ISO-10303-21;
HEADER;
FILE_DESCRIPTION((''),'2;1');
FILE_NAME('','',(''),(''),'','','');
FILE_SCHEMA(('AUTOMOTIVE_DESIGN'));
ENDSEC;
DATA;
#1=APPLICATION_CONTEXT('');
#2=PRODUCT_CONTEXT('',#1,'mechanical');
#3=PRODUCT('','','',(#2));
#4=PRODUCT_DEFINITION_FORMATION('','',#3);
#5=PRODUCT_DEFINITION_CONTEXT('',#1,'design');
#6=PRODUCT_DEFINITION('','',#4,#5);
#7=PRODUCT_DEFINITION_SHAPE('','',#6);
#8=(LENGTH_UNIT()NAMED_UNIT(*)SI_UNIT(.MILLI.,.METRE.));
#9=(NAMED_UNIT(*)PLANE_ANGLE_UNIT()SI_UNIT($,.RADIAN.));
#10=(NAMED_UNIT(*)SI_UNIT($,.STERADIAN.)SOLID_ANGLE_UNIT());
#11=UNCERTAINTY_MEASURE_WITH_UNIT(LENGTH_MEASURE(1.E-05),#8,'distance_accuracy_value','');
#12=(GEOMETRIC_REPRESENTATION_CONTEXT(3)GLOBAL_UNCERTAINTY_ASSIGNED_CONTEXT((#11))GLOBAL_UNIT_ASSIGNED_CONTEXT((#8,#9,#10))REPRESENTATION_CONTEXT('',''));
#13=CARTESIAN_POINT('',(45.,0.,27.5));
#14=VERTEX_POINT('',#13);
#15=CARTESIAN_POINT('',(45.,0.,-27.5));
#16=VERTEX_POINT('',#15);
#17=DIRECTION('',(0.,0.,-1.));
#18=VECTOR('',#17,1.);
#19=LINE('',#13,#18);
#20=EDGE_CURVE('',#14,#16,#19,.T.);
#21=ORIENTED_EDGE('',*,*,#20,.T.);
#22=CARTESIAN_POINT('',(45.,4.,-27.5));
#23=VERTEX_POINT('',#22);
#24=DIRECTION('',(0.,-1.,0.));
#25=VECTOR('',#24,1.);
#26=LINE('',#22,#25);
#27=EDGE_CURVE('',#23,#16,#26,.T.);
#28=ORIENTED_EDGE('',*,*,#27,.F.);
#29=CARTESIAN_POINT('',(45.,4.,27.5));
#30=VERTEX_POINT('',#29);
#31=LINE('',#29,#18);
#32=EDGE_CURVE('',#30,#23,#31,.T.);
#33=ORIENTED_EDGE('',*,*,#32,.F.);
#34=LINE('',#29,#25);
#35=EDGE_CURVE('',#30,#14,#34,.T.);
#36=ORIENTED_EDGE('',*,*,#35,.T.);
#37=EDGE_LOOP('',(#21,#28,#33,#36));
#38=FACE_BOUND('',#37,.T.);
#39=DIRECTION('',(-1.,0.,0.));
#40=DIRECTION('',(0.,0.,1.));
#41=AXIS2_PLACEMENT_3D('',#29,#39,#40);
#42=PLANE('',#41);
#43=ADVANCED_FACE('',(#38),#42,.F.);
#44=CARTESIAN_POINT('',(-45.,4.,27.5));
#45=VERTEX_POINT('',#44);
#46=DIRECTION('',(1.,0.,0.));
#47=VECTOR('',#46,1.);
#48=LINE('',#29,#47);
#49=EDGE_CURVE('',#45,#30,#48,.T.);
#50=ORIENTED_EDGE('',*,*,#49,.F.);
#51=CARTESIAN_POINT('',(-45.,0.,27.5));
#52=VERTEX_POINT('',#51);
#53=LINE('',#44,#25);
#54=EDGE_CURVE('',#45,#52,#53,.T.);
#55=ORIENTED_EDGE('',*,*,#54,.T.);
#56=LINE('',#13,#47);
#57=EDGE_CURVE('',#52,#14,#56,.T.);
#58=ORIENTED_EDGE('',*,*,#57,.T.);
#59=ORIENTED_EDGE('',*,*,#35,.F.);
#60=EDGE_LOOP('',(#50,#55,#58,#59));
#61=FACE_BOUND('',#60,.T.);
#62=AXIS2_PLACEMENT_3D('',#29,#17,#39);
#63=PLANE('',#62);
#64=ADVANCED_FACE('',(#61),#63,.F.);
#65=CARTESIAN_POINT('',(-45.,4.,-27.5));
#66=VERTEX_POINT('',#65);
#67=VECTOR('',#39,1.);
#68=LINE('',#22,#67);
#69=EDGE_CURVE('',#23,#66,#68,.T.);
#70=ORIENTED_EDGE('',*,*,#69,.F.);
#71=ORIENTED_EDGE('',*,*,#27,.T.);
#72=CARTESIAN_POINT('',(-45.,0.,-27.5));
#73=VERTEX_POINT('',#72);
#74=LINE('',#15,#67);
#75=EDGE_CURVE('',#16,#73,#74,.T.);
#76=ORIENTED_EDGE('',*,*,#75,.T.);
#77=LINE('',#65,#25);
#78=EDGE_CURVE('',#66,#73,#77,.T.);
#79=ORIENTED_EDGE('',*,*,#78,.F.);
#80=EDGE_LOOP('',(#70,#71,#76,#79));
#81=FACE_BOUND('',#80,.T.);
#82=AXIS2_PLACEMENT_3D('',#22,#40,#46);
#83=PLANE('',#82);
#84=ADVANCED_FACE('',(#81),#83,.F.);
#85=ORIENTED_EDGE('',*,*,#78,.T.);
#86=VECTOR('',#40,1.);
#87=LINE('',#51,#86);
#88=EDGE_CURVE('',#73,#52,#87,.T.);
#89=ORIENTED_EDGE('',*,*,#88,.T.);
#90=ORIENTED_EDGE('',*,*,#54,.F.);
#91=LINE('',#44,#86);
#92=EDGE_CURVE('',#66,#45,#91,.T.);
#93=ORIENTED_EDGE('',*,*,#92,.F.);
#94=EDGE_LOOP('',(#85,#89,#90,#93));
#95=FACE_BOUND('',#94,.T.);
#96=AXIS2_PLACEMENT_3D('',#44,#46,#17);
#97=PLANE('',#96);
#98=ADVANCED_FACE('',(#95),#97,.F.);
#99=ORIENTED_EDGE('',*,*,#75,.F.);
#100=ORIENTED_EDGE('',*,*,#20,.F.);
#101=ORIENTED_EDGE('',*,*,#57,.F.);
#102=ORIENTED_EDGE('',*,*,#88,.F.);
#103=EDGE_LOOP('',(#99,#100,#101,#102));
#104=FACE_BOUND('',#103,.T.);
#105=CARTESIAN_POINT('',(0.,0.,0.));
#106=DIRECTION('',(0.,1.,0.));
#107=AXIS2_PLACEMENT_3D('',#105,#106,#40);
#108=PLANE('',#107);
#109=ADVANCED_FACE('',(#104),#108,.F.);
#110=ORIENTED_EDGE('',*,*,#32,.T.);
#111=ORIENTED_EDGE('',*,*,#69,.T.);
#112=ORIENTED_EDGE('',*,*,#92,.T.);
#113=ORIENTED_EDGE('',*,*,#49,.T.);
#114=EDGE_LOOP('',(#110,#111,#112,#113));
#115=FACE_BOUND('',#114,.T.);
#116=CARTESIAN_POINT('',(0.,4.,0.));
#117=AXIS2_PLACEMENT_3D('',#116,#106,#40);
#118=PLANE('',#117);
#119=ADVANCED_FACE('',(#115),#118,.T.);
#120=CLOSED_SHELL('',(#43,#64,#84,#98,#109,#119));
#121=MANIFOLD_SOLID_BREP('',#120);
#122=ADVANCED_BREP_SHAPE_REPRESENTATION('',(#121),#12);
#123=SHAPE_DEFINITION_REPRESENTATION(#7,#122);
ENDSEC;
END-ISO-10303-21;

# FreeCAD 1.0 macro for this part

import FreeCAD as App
import Part
import Sketcher

V = App.Vector
Q = App.Units.Quantity

doc = App.newDocument("Part")
params = doc.addObject("Spreadsheet::Sheet", "Params")
for row, (alias, value) in enumerate([
    ("sketch1_width", "90 mm"),
    ("sketch1_height", "55 mm"),
    ("pad1_length", "4 mm"),
], start=1):
    params.set(f"A{row}", alias)
    params.set(f"B{row}", "=" + value)
    params.setAlias(f"B{row}", alias)

body = doc.addObject("PartDesign::Body", "Body")

# Sketch on XZ plane
sketch1 = doc.addObject("Sketcher::SketchObject", "Sketch")
body.addObject(sketch1)
sketch1.AttachmentSupport = (doc.XZ_Plane, [""])
sketch1.MapMode = "FlatFace"
sketch1.addGeometry(Part.LineSegment(V(-45, -27.5, 0), V(-45, 27.5, 0)), False)
sketch1.addGeometry(Part.LineSegment(V(-45, 27.5, 0), V(45, 27.5, 0)), False)
sketch1.addGeometry(Part.LineSegment(V(45, 27.5, 0), V(45, -27.5, 0)), False)
sketch1.addGeometry(Part.LineSegment(V(45, -27.5, 0), V(-45, -27.5, 0)), False)
sketch1.addConstraint(Sketcher.Constraint("Coincident", 0, 2, 1, 1))
sketch1.addConstraint(Sketcher.Constraint("Coincident", 1, 2, 2, 1))
sketch1.addConstraint(Sketcher.Constraint("Coincident", 2, 2, 3, 1))
sketch1.addConstraint(Sketcher.Constraint("Coincident", 3, 2, 0, 1))
sketch1.addConstraint(Sketcher.Constraint("Vertical", 0))
sketch1.addConstraint(Sketcher.Constraint("Horizontal", 1))
sketch1.addConstraint(Sketcher.Constraint("Vertical", 2))
sketch1.addConstraint(Sketcher.Constraint("Horizontal", 3))
sketch1.addConstraint(Sketcher.Constraint("Symmetric", 0, 2, 2, 2, -1, 1))
sketch1.addConstraint(Sketcher.Constraint("DistanceX", 1, 1, 1, 2, Q("90 mm")))
sketch1.addConstraint(Sketcher.Constraint("DistanceY", 0, 1, 0, 2, Q("55 mm")))
sketch1.setExpression("Constraints[9]", "Params.sketch1_width")
sketch1.setExpression("Constraints[10]", "Params.sketch1_height")
pad1 = doc.addObject("PartDesign::Pad", "Pad")
body.addObject(pad1)
pad1.Profile = sketch1
pad1.setExpression("Length", "Params.pad1_length")
pad1.Reversed = True

doc.recompute()
